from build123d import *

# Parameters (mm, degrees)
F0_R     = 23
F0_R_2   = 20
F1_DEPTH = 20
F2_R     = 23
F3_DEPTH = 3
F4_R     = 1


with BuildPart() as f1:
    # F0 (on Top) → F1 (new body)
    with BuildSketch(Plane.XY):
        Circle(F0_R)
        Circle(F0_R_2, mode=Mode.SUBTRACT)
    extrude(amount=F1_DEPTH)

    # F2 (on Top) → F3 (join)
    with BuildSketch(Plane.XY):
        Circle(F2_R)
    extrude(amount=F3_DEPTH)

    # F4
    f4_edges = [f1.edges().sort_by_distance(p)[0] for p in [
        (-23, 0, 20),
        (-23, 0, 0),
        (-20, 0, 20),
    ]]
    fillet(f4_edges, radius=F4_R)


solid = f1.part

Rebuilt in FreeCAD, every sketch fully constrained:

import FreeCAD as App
import Part
import Sketcher

V = App.Vector


def edges_at(feature, points):
    """Names of the edges that pass closest to the given points."""
    edges = feature.Shape.Edges
    near = lambda p: min(range(len(edges)), key=lambda i: edges[i].distToShape(Part.Vertex(*p))[0])
    return sorted({f"Edge{near(p) + 1}" for p in points})

doc = App.newDocument("Part")
body = doc.addObject("PartDesign::Body", "Body")

sketch1 = body.newObject("Sketcher::SketchObject", "Sketch")
sketch1.AttachmentSupport = (doc.getObject("XY_Plane"), [""])
sketch1.MapMode = "FlatFace"
sketch1.addGeometry([
    Part.Circle(V(0, 0, 0), V(0, 0, 1), 23),
    Part.Circle(V(0, 0, 0), V(0, 0, 1), 20),
], False)
sketch1.addConstraint([
    Sketcher.Constraint("Coincident", 0, 3, -1, 1),
    Sketcher.Constraint("Coincident", 1, 3, -1, 1),
    Sketcher.Constraint("Diameter", 0, 46.0),
    Sketcher.Constraint("Diameter", 1, 40.0),
])
pad1 = body.newObject("PartDesign::Pad", "Pad")
pad1.Profile = sketch1
pad1.Length = 20

sketch2 = body.newObject("Sketcher::SketchObject", "Sketch001")
sketch2.AttachmentSupport = (doc.getObject("XY_Plane"), [""])
sketch2.MapMode = "FlatFace"
sketch2.addGeometry(Part.Circle(V(0, 0, 0), V(0, 0, 1), 23), False)
sketch2.addConstraint([
    Sketcher.Constraint("Coincident", 0, 3, -1, 1),
    Sketcher.Constraint("Diameter", 0, 46.0),
])
pad2 = body.newObject("PartDesign::Pad", "Pad001")
pad2.Profile = sketch2
pad2.Length = 3
doc.recompute()

fillet = body.newObject("PartDesign::Fillet", "Fillet")
fillet.Base = (pad2, edges_at(pad2, [(-23, 0, 20), (-23, 0, 0), (-20, 0, 20)]))
fillet.Radius = 1

doc.recompute()
